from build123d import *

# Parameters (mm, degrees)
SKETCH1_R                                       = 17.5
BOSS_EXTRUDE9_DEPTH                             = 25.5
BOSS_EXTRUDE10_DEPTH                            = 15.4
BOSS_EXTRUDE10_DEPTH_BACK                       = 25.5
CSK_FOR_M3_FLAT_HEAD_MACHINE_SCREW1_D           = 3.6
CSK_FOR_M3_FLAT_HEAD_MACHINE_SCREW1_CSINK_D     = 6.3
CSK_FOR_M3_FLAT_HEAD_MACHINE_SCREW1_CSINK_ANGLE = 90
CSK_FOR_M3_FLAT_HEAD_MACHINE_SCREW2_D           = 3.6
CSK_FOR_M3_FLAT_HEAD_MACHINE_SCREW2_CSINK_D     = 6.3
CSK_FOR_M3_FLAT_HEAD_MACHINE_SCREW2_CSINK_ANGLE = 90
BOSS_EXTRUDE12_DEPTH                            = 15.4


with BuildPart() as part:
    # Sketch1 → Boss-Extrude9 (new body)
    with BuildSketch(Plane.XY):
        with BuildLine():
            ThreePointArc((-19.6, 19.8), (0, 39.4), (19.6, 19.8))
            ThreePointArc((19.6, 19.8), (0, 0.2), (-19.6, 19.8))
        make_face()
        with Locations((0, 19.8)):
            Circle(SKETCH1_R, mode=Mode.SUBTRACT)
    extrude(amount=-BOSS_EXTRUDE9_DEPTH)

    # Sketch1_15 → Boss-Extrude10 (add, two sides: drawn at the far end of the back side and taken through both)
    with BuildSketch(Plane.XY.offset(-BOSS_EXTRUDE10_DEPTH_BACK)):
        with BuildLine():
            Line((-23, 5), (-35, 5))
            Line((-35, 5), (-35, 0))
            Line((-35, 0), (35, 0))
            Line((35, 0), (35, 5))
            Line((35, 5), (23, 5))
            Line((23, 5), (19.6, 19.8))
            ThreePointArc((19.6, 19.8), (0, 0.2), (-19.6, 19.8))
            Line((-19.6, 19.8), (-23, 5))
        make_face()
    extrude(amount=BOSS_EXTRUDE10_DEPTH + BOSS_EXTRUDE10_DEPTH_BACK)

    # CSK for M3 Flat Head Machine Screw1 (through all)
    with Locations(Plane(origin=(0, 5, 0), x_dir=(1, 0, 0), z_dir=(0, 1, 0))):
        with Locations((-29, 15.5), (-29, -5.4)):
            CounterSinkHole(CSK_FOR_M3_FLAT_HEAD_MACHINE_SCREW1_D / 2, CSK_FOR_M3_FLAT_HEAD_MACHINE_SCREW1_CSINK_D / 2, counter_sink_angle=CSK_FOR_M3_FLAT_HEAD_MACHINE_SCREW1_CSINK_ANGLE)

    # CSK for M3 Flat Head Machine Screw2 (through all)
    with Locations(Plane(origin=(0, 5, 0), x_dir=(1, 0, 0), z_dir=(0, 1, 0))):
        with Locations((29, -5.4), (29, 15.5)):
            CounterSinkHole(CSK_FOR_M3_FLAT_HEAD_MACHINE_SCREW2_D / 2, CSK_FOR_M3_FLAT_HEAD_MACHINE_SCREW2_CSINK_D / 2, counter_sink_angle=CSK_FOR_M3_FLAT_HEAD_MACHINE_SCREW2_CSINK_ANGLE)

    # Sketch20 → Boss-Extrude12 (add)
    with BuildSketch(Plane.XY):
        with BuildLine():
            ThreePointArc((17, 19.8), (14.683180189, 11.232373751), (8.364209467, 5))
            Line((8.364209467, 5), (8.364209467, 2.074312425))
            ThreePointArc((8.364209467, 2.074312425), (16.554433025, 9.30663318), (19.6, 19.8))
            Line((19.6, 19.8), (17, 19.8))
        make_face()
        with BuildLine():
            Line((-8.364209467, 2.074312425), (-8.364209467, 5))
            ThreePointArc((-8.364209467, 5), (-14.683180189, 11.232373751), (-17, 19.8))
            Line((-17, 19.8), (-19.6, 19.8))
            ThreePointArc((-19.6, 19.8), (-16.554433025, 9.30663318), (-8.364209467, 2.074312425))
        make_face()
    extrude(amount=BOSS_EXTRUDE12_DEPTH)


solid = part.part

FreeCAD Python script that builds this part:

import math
import FreeCAD as App
import Part
import Sketcher
Q = App.Units.Quantity

doc = App.newDocument("Part")
body = doc.addObject("PartDesign::Body", "Body")

sketch1 = body.newObject("Sketcher::SketchObject", "Sketch")
sketch1.AttachmentSupport = (doc.getObject("XY_Plane"), [""])
sketch1.MapMode = "FlatFace"
sketch1.addGeometry([
    Part.Circle(App.Vector(0, 19.8, 0), App.Vector(0, 0, 1), 19.6),
    Part.Circle(App.Vector(0, 19.8, 0), App.Vector(0, 0, 1), 17.5),
], False)
sketch1.addConstraint([
    Sketcher.Constraint("Coincident", 1, 3, 0, 3),
    Sketcher.Constraint("PointOnObject", 0, 3, -2),
    Sketcher.Constraint("Diameter", 1, Q("35 mm")),
    Sketcher.Constraint("Diameter", 0, Q("39.2 mm")),
    Sketcher.Constraint("DistanceY", -1, 1, 0, 3, Q("19.8 mm")),
])
pad1 = body.newObject("PartDesign::Pad", "Pad")
pad1.Profile = sketch1
pad1.Length = 25.5
pad1.Reversed = True

sketch2 = body.newObject("Sketcher::SketchObject", "Sketch001")
sketch2.AttachmentSupport = (doc.getObject("XY_Plane"), [""])
sketch2.MapMode = "FlatFace"
sketch2.addGeometry([
    Part.LineSegment(App.Vector(-23, 5, 0), App.Vector(-35, 5, 0)),
    Part.LineSegment(App.Vector(-35, 5, 0), App.Vector(-35, 0, 0)),
    Part.LineSegment(App.Vector(-35, 0, 0), App.Vector(35, 0, 0)),
    Part.LineSegment(App.Vector(35, 0, 0), App.Vector(35, 5, 0)),
    Part.LineSegment(App.Vector(35, 5, 0), App.Vector(23, 5, 0)),
    Part.LineSegment(App.Vector(23, 5, 0), App.Vector(19.6, 19.8, 0)),
    Part.ArcOfCircle(Part.Circle(App.Vector(0, 19.8, 0), App.Vector(0, 0, 1), 19.6), math.radians(180), math.radians(360)),
    Part.LineSegment(App.Vector(-19.6, 19.8, 0), App.Vector(-23, 5, 0)),
], False)
sketch2.addConstraint([
    Sketcher.Constraint("Coincident", 0, 2, 1, 1),
    Sketcher.Constraint("Coincident", 1, 2, 2, 1),
    Sketcher.Constraint("Coincident", 2, 2, 3, 1),
    Sketcher.Constraint("Coincident", 3, 2, 4, 1),
    Sketcher.Constraint("Coincident", 4, 2, 5, 1),
    Sketcher.Constraint("Coincident", 5, 2, 6, 2),
    Sketcher.Constraint("Coincident", 6, 1, 7, 1),
    Sketcher.Constraint("Coincident", 7, 2, 0, 1),
    Sketcher.Constraint("Horizontal", 0),
    Sketcher.Constraint("Vertical", 1),
    Sketcher.Constraint("Horizontal", 2),
    Sketcher.Constraint("Vertical", 3),
    Sketcher.Constraint("Horizontal", 4),
    Sketcher.Constraint("Symmetric", 1, 2, 2, 2, -1, 1),
    Sketcher.Constraint("Symmetric", 5, 2, 6, 1, -2),
    Sketcher.Constraint("Symmetric", 4, 2, 7, 2, -2),
    Sketcher.Constraint("Horizontal", 6, 3, 5, 2),
    Sketcher.Constraint("Radius", 6, Q("19.6 mm")),
    Sketcher.Constraint("DistanceX", 0, 2, 0, 1, Q("12 mm")),
    Sketcher.Constraint("DistanceX", 2, 1, 2, 2, Q("70 mm")),
    Sketcher.Constraint("DistanceY", 1, 2, 1, 1, Q("5 mm")),
    Sketcher.Constraint("DistanceY", -1, 1, 6, 3, Q("19.8 mm")),
])
pad2 = body.newObject("PartDesign::Pad", "Pad001")
pad2.Profile = sketch2
pad2.Type = "TwoLengths"
pad2.Length = 15.4
pad2.Length2 = 25.5

sketch3 = body.newObject("Sketcher::SketchObject", "Sketch002")
sketch3.AttachmentSupport = (doc.getObject("XZ_Plane"), [""])
sketch3.MapMode = "FlatFace"
sketch3.AttachmentOffset = App.Placement(App.Vector(0, 0, -5), App.Rotation())
sketch3.addGeometry([
    Part.Circle(App.Vector(-29, -15.5, 0), App.Vector(0, 0, 1), 1.8),
    Part.Circle(App.Vector(-29, 5.4, 0), App.Vector(0, 0, 1), 1.8),
], False)
sketch3.addConstraint([
    Sketcher.Constraint("Equal", 0, 1),
    Sketcher.Constraint("Vertical", 0, 3, 1, 3),
    Sketcher.Constraint("Diameter", 0, Q("3.6 mm")),
    Sketcher.Constraint("DistanceX", 0, 3, -1, 1, Q("29 mm")),
    Sketcher.Constraint("DistanceY", 0, 3, -1, 1, Q("15.5 mm")),
    Sketcher.Constraint("DistanceY", -1, 1, 1, 3, Q("5.4 mm")),
])
doc.recompute()
hole = body.newObject("PartDesign::Hole", "Hole")
hole.Profile = sketch3
hole.ThreadType = "None"
hole.Diameter = 3.6
hole.DepthType = "ThroughAll"
hole.HoleCutType = "Countersink"
hole.HoleCutDiameter = 6.3
hole.HoleCutCountersinkAngle = 90
hole.Reversed = True

sketch4 = body.newObject("Sketcher::SketchObject", "Sketch003")
sketch4.AttachmentSupport = (doc.getObject("XZ_Plane"), [""])
sketch4.MapMode = "FlatFace"
sketch4.AttachmentOffset = App.Placement(App.Vector(0, 0, -5), App.Rotation())
sketch4.addGeometry([
    Part.Circle(App.Vector(29, 5.4, 0), App.Vector(0, 0, 1), 1.8),
    Part.Circle(App.Vector(29, -15.5, 0), App.Vector(0, 0, 1), 1.8),
], False)
sketch4.addConstraint([
    Sketcher.Constraint("Equal", 0, 1),
    Sketcher.Constraint("Vertical", 0, 3, 1, 3),
    Sketcher.Constraint("Diameter", 0, Q("3.6 mm")),
    Sketcher.Constraint("DistanceX", -1, 1, 0, 3, Q("29 mm")),
    Sketcher.Constraint("DistanceY", -1, 1, 0, 3, Q("5.4 mm")),
    Sketcher.Constraint("DistanceY", 1, 3, -1, 1, Q("15.5 mm")),
])
doc.recompute()
hole2 = body.newObject("PartDesign::Hole", "Hole001")
hole2.Profile = sketch4
hole2.ThreadType = "None"
hole2.Diameter = 3.6
hole2.DepthType = "ThroughAll"
hole2.HoleCutType = "Countersink"
hole2.HoleCutDiameter = 6.3
hole2.HoleCutCountersinkAngle = 90
hole2.Reversed = True

sketch5 = body.newObject("Sketcher::SketchObject", "Sketch004")
sketch5.AttachmentSupport = (doc.getObject("XY_Plane"), [""])
sketch5.MapMode = "FlatFace"
sketch5.addGeometry([
    Part.ArcOfCircle(Part.Circle(App.Vector(0, 19.8, 0), App.Vector(0, 0, 1), 17), math.radians(-60.527068), math.radians(0)),
    Part.LineSegment(App.Vector(8.364209, 5, 0), App.Vector(8.364209, 2.074312, 0)),
    Part.ArcOfCircle(Part.Circle(App.Vector(0, 19.8, 0), App.Vector(0, 0, 1), 19.6), math.radians(-64.73881), math.radians(0)),
    Part.LineSegment(App.Vector(19.6, 19.8, 0), App.Vector(17, 19.8, 0)),
    Part.LineSegment(App.Vector(-8.364209, 2.074312, 0), App.Vector(-8.364209, 5, 0)),
    Part.ArcOfCircle(Part.Circle(App.Vector(0, 19.8, 0), App.Vector(0, 0, 1), 17), math.radians(180), math.radians(240.527068)),
    Part.LineSegment(App.Vector(-17, 19.8, 0), App.Vector(-19.6, 19.8, 0)),
    Part.ArcOfCircle(Part.Circle(App.Vector(0, 19.8, 0), App.Vector(0, 0, 1), 19.6), math.radians(180), math.radians(244.73881)),
], False)
sketch5.addConstraint([
    Sketcher.Constraint("Coincident", 0, 1, 1, 1),
    Sketcher.Constraint("Coincident", 1, 2, 2, 1),
    Sketcher.Constraint("Coincident", 2, 2, 3, 1),
    Sketcher.Constraint("Coincident", 3, 2, 0, 2),
    Sketcher.Constraint("Coincident", 4, 2, 5, 2),
    Sketcher.Constraint("Coincident", 5, 1, 6, 1),
    Sketcher.Constraint("Coincident", 6, 2, 7, 1),
    Sketcher.Constraint("Coincident", 7, 2, 4, 1),
    Sketcher.Constraint("Vertical", 1),
    Sketcher.Constraint("Horizontal", 3),
    Sketcher.Constraint("Vertical", 4),
    Sketcher.Constraint("Horizontal", 6),
    Sketcher.Constraint("Coincident", 2, 3, 0, 3),
    Sketcher.Constraint("Coincident", 5, 3, 0, 3),
    Sketcher.Constraint("Coincident", 7, 3, 0, 3),
    Sketcher.Constraint("Equal", 0, 5),
    Sketcher.Constraint("Equal", 2, 7),
    Sketcher.Constraint("Symmetric", 0, 1, 4, 2, -2),
    Sketcher.Constraint("Horizontal", 7, 3, 2, 2),
    Sketcher.Constraint("Horizontal", 3, 2, 5, 1),
    Sketcher.Constraint("Radius", 0, Q("17 mm")),
    Sketcher.Constraint("Radius", 2, Q("19.6 mm")),
    Sketcher.Constraint("DistanceY", -1, 1, 0, 1, Q("5 mm")),
    Sketcher.Constraint("DistanceY", -1, 1, 0, 3, Q("19.8 mm")),
])
pad3 = body.newObject("PartDesign::Pad", "Pad002")
pad3.Profile = sketch5
pad3.Length = 15.4

doc.recompute()
